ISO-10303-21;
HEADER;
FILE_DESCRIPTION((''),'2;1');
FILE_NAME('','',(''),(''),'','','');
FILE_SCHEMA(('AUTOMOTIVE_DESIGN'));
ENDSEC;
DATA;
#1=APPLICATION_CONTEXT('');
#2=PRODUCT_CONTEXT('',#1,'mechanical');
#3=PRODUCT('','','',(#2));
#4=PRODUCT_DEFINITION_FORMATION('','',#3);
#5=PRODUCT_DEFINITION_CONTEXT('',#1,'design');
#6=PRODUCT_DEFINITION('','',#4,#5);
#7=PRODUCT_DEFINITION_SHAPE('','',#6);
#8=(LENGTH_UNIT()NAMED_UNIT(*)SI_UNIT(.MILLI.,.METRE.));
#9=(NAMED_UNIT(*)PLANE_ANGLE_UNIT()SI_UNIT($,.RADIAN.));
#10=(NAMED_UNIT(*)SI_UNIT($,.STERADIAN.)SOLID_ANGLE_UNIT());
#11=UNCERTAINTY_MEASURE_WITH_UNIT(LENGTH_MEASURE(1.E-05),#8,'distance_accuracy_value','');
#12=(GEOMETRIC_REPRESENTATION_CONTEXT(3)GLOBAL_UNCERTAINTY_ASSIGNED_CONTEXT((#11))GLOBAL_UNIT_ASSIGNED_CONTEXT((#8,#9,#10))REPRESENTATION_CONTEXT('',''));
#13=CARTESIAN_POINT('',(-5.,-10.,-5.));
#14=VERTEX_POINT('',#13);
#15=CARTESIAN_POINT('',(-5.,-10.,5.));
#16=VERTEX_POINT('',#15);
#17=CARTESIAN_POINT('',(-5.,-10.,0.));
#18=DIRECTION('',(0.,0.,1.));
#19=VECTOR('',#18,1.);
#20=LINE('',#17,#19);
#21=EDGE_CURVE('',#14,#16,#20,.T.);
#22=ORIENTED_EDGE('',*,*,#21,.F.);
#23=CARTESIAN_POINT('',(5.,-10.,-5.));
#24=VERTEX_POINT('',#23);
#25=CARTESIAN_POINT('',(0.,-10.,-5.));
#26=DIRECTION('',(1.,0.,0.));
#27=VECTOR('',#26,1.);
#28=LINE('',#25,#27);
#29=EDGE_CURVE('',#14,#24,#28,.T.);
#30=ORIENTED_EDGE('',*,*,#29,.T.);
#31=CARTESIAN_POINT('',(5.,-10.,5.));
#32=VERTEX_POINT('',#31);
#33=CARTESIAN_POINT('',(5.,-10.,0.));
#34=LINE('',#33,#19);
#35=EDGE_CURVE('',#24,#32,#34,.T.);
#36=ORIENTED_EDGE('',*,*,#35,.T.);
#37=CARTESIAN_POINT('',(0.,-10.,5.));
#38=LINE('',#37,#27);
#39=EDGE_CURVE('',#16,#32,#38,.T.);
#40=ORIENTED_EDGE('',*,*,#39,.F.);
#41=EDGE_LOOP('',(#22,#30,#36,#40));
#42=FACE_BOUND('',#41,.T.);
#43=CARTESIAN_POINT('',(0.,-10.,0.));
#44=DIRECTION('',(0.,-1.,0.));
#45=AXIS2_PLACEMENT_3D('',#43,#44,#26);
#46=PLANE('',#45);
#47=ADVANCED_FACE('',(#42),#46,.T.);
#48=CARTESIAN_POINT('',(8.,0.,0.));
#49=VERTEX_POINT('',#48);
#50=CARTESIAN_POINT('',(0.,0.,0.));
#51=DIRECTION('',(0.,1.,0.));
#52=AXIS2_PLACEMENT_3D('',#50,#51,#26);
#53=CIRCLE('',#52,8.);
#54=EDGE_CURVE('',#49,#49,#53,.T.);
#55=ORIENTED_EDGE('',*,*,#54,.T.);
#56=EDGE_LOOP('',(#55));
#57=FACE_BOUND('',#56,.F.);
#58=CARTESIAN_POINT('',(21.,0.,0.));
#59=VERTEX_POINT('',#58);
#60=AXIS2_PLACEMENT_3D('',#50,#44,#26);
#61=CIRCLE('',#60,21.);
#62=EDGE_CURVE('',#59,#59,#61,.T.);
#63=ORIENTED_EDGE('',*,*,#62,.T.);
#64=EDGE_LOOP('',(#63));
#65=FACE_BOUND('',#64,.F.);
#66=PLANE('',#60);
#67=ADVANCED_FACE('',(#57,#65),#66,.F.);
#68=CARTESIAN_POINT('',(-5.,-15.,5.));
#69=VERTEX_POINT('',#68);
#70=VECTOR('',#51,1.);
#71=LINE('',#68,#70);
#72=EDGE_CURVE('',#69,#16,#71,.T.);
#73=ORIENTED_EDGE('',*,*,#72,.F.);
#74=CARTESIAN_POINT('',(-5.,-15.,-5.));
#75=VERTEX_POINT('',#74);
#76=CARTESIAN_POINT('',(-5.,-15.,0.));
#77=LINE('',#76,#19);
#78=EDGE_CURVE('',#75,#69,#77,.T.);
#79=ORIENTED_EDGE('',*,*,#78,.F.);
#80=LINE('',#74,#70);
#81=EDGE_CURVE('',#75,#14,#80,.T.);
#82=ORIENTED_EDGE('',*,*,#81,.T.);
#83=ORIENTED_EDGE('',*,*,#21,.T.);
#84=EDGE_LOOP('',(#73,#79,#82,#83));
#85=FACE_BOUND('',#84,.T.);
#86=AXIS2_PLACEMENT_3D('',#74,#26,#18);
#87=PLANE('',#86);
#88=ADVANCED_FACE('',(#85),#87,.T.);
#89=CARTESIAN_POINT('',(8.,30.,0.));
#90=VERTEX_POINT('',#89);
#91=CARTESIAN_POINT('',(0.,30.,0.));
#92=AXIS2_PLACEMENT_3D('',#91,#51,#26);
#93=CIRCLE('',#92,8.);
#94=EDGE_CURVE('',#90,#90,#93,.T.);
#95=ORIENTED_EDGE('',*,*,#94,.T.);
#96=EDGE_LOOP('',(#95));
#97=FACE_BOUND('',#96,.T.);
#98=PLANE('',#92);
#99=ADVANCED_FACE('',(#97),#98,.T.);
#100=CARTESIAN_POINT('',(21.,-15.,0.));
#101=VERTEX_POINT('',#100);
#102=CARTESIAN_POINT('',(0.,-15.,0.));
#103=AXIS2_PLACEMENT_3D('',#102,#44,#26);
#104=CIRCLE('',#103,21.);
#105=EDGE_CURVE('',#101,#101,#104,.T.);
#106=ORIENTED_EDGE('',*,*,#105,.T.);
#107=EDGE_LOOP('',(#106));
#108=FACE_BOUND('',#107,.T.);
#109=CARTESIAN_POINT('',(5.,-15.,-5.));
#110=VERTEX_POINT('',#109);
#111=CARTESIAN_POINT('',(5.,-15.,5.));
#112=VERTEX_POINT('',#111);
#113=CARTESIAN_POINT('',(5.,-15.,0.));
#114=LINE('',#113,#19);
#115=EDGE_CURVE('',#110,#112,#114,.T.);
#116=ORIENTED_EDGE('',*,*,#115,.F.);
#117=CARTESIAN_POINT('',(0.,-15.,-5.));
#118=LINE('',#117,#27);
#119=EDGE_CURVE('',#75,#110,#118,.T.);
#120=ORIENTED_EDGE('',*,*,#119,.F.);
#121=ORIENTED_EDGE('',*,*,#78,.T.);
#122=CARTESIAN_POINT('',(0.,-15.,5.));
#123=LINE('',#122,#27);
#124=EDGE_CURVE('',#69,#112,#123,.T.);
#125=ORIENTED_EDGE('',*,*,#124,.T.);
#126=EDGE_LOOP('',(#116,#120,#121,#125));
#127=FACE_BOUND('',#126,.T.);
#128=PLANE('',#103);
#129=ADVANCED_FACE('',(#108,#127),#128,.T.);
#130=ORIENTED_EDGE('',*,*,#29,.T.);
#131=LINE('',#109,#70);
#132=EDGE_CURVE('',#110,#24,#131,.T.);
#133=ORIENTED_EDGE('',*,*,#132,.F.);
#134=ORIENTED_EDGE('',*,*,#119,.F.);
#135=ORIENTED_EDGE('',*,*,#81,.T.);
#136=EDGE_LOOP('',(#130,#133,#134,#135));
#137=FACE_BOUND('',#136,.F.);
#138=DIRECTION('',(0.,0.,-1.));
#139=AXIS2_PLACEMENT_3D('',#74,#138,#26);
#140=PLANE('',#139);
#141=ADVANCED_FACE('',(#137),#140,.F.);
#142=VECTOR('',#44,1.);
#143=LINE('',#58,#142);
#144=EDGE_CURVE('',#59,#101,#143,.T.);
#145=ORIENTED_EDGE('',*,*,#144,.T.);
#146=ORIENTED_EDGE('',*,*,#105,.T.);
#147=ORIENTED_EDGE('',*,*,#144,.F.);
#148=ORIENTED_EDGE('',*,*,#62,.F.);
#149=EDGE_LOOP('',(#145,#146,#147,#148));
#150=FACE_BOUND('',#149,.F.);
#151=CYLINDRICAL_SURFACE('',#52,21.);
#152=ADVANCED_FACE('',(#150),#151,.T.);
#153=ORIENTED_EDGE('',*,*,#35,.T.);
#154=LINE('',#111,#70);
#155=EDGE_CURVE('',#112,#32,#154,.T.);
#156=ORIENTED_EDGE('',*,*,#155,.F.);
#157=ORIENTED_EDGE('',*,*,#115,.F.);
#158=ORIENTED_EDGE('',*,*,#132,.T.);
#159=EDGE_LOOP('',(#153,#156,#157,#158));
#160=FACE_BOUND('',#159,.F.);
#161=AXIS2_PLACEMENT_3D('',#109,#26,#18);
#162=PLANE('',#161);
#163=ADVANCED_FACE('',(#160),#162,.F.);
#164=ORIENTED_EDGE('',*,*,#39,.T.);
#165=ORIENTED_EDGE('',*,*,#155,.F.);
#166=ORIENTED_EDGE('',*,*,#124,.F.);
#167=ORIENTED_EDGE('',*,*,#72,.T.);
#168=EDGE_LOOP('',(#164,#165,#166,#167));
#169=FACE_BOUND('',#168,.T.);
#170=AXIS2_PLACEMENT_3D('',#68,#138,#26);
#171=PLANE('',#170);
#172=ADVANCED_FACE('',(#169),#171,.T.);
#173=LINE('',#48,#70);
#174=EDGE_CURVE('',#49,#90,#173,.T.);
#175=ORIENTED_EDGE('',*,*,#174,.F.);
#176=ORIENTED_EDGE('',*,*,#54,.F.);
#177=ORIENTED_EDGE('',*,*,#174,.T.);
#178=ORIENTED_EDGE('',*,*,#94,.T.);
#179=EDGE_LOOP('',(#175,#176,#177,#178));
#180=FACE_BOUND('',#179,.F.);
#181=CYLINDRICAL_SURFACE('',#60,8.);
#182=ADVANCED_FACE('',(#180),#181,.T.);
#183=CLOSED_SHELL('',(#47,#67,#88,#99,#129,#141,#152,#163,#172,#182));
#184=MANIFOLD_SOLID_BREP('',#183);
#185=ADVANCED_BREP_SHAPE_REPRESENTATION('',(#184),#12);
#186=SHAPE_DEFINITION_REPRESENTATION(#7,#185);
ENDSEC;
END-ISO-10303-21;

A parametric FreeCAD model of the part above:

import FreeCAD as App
import Part
import Sketcher

doc = App.newDocument("Part")
body = doc.addObject("PartDesign::Body", "Body")

sketch1 = doc.addObject("Sketcher::SketchObject", "Sketch")
body.addObject(sketch1)
sketch1.AttachmentSupport = (doc.XZ_Plane, [""])
sketch1.MapMode = "FlatFace"
sketch1.addGeometry(Part.Circle(App.Vector(0, 0, 0), App.Vector(0, 0, 1), 21), False)
sketch1.addConstraint([
    Sketcher.Constraint("Coincident", 0, 3, -1, 1),
    Sketcher.Constraint("Diameter", 0, 42.0),
])
pad1 = doc.addObject("PartDesign::Pad", "Pad")
body.addObject(pad1)
pad1.Profile = sketch1
pad1.Length = 15

sketch2 = doc.addObject("Sketcher::SketchObject", "Sketch001")
body.addObject(sketch2)
sketch2.AttachmentSupport = (doc.XZ_Plane, [""])
sketch2.MapMode = "FlatFace"
sketch2.AttachmentOffset = App.Placement(App.Vector(0, 0, 15), App.Rotation())
sketch2.addGeometry([
    Part.LineSegment(App.Vector(-5, 5, 0), App.Vector(-5, -5, 0)),
    Part.LineSegment(App.Vector(-5, -5, 0), App.Vector(5, -5, 0)),
    Part.LineSegment(App.Vector(5, -5, 0), App.Vector(5, 5, 0)),
    Part.LineSegment(App.Vector(5, 5, 0), App.Vector(-5, 5, 0)),
], False)
sketch2.addConstraint([
    Sketcher.Constraint("Coincident", 0, 2, 1, 1),
    Sketcher.Constraint("Coincident", 1, 2, 2, 1),
    Sketcher.Constraint("Coincident", 2, 2, 3, 1),
    Sketcher.Constraint("Coincident", 3, 2, 0, 1),
    Sketcher.Constraint("Vertical", 0),
    Sketcher.Constraint("Horizontal", 1),
    Sketcher.Constraint("Vertical", 2),
    Sketcher.Constraint("Horizontal", 3),
    Sketcher.Constraint("Symmetric", 0, 2, 2, 2, -1, 1),
    Sketcher.Constraint("Equal", 3, 0),
    Sketcher.Constraint("DistanceX", 1, 1, 1, 2, 10.0),
])
pocket1 = doc.addObject("PartDesign::Pocket", "Pocket")
body.addObject(pocket1)
pocket1.Profile = sketch2
pocket1.Length = 5

sketch3 = doc.addObject("Sketcher::SketchObject", "Sketch002")
body.addObject(sketch3)
sketch3.AttachmentSupport = (doc.XZ_Plane, [""])
sketch3.MapMode = "FlatFace"
sketch3.addGeometry(Part.Circle(App.Vector(0, 0, 0), App.Vector(0, 0, 1), 8), False)
sketch3.addConstraint([
    Sketcher.Constraint("Coincident", 0, 3, -1, 1),
    Sketcher.Constraint("Diameter", 0, 16.0),
])
pad2 = doc.addObject("PartDesign::Pad", "Pad001")
body.addObject(pad2)
pad2.Profile = sketch3
pad2.Length = 30
pad2.Reversed = True

doc.recompute()
